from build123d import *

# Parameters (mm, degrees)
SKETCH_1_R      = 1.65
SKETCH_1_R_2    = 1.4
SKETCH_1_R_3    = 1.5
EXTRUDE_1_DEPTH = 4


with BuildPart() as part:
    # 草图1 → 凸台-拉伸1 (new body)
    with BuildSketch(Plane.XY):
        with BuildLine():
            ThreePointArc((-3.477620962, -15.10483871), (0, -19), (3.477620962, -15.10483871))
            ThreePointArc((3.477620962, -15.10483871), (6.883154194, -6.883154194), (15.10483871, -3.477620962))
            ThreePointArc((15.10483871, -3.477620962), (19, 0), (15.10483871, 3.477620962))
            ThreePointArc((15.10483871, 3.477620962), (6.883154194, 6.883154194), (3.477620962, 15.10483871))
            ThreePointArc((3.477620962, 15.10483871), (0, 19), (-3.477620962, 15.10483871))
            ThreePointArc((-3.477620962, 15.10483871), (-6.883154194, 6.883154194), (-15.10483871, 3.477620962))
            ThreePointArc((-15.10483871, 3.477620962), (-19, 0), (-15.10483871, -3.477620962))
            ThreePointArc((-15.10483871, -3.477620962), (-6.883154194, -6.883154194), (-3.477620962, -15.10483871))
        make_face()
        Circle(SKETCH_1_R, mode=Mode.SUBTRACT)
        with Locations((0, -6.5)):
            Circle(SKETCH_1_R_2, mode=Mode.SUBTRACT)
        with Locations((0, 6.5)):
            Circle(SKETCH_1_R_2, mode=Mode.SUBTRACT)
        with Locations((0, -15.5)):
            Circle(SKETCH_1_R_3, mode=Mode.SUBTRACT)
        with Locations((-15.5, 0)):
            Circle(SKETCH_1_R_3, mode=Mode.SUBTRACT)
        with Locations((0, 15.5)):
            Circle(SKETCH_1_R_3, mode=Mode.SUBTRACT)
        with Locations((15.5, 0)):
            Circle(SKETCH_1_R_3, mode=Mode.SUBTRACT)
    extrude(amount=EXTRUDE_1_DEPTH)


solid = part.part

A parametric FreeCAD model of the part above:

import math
import FreeCAD as App
import Part
import Sketcher

doc = App.newDocument("Part")
body = doc.addObject("PartDesign::Body", "Body")

sketch1 = body.newObject("Sketcher::SketchObject", "Sketch")
sketch1.AttachmentSupport = (doc.getObject("XY_Plane"), [""])
sketch1.MapMode = "FlatFace"
sketch1.addGeometry(Part.ArcOfCircle(Part.Circle(App.Vector(0, -15.5, 0), App.Vector(0, 0, 1), 3.5), math.radians(174), math.radians(366)), False)
sketch1.addGeometry(Part.ArcOfCircle(Part.Circle(App.Vector(15.1, -15.1, 0), App.Vector(0, 0, 1), 11.6), math.radians(90), math.radians(180)), False)
sketch1.addGeometry(Part.ArcOfCircle(Part.Circle(App.Vector(15.5, 0, 0), App.Vector(0, 0, 1), 3.5), math.radians(-96), math.radians(96)), False)
sketch1.addGeometry(Part.ArcOfCircle(Part.Circle(App.Vector(15.1, 15.1, 0), App.Vector(0, 0, 1), 11.6), math.radians(180), math.radians(270)), False)
sketch1.addGeometry(Part.ArcOfCircle(Part.Circle(App.Vector(0, 15.5, 0), App.Vector(0, 0, 1), 3.5), math.radians(-6), math.radians(186)), False)
sketch1.addGeometry(Part.ArcOfCircle(Part.Circle(App.Vector(-15.1, 15.1, 0), App.Vector(0, 0, 1), 11.6), math.radians(-90), math.radians(0)), False)
sketch1.addGeometry(Part.ArcOfCircle(Part.Circle(App.Vector(-15.5, 0, 0), App.Vector(0, 0, 1), 3.5), math.radians(84), math.radians(276)), False)
sketch1.addGeometry(Part.ArcOfCircle(Part.Circle(App.Vector(-15.1, -15.1, 0), App.Vector(0, 0, 1), 11.6), math.radians(0), math.radians(90)), False)
sketch1.addGeometry(Part.Circle(App.Vector(0, -15.5, 0), App.Vector(0, 0, 1), 1.5), False)
sketch1.addGeometry(Part.Circle(App.Vector(0, -6.5, 0), App.Vector(0, 0, 1), 1.4), False)
sketch1.addGeometry(Part.Circle(App.Vector(-15.5, 0, 0), App.Vector(0, 0, 1), 1.5), False)
sketch1.addGeometry(Part.Circle(App.Vector(0, 0, 0), App.Vector(0, 0, 1), 1.6), False)
sketch1.addGeometry(Part.Circle(App.Vector(0, 6.5, 0), App.Vector(0, 0, 1), 1.4), False)
sketch1.addGeometry(Part.Circle(App.Vector(15.5, 0, 0), App.Vector(0, 0, 1), 1.5), False)
sketch1.addGeometry(Part.Circle(App.Vector(0, 15.5, 0), App.Vector(0, 0, 1), 1.5), False)
sketch1.addConstraint(Sketcher.Constraint("Coincident", 0, 2, 1, 2))
sketch1.addConstraint(Sketcher.Constraint("Coincident", 1, 1, 2, 1))
sketch1.addConstraint(Sketcher.Constraint("Coincident", 2, 2, 3, 2))
sketch1.addConstraint(Sketcher.Constraint("Coincident", 3, 1, 4, 1))
sketch1.addConstraint(Sketcher.Constraint("Coincident", 4, 2, 5, 2))
sketch1.addConstraint(Sketcher.Constraint("Coincident", 5, 1, 6, 1))
sketch1.addConstraint(Sketcher.Constraint("Coincident", 6, 2, 7, 2))
sketch1.addConstraint(Sketcher.Constraint("Coincident", 7, 1, 0, 1))
sketch1.addConstraint(Sketcher.Constraint("Coincident", 11, 3, -1, 1))
sketch1.addConstraint(Sketcher.Constraint("Coincident", 8, 3, 0, 3))
sketch1.addConstraint(Sketcher.Constraint("Coincident", 10, 3, 6, 3))
sketch1.addConstraint(Sketcher.Constraint("Coincident", 13, 3, 2, 3))
sketch1.addConstraint(Sketcher.Constraint("Coincident", 14, 3, 4, 3))
sketch1.addConstraint(Sketcher.Constraint("Equal", 0, 2))
sketch1.addConstraint(Sketcher.Constraint("Equal", 1, 3))
sketch1.addConstraint(Sketcher.Constraint("Equal", 2, 4))
sketch1.addConstraint(Sketcher.Constraint("Equal", 3, 5))
sketch1.addConstraint(Sketcher.Constraint("Equal", 4, 6))
sketch1.addConstraint(Sketcher.Constraint("Equal", 5, 7))
sketch1.addConstraint(Sketcher.Constraint("Equal", 8, 10))
sketch1.addConstraint(Sketcher.Constraint("Equal", 9, 12))
sketch1.addConstraint(Sketcher.Constraint("Equal", 10, 13))
sketch1.addConstraint(Sketcher.Constraint("Equal", 13, 14))
sketch1.addConstraint(Sketcher.Constraint("Symmetric", 0, 3, 4, 3, -1, 1))
sketch1.addConstraint(Sketcher.Constraint("Symmetric", 1, 3, 5, 3, -1, 1))
sketch1.addConstraint(Sketcher.Constraint("Symmetric", 2, 3, 6, 3, -1, 1))
sketch1.addConstraint(Sketcher.Constraint("Symmetric", 3, 3, 7, 3, -1, 1))
sketch1.addConstraint(Sketcher.Constraint("Symmetric", 9, 3, 12, 3, -1, 1))
sketch1.addConstraint(Sketcher.Constraint("Symmetric", 3, 3, 5, 3, -2))
sketch1.addConstraint(Sketcher.Constraint("PointOnObject", 0, 3, -2))
sketch1.addConstraint(Sketcher.Constraint("PointOnObject", 2, 3, -1))
sketch1.addConstraint(Sketcher.Constraint("PointOnObject", 9, 3, -2))
sketch1.addConstraint(Sketcher.Constraint("Horizontal", 7, 3, 0, 2))
sketch1.addConstraint(Sketcher.Constraint("Vertical", 3, 3, 1, 1))
sketch1.addConstraint(Sketcher.Constraint("Diameter", 8, 3.0))
sketch1.addConstraint(Sketcher.Constraint("Diameter", 9, 2.8))
sketch1.addConstraint(Sketcher.Constraint("Diameter", 11, 3.3))
sketch1.addConstraint(Sketcher.Constraint("Radius", 0, 3.5))
sketch1.addConstraint(Sketcher.Constraint("DistanceY", 0, 3, 4, 3, 31.0))
sketch1.addConstraint(Sketcher.Constraint("DistanceX", 6, 3, 2, 3, 31.0))
sketch1.addConstraint(Sketcher.Constraint("DistanceY", 0, 3, 9, 3, 9.0))
sketch1.addConstraint(Sketcher.Constraint("Radius", 1, 11.627218))
pad1 = body.newObject("PartDesign::Pad", "Pad")
pad1.Profile = sketch1
pad1.Length = 4

doc.recompute()
